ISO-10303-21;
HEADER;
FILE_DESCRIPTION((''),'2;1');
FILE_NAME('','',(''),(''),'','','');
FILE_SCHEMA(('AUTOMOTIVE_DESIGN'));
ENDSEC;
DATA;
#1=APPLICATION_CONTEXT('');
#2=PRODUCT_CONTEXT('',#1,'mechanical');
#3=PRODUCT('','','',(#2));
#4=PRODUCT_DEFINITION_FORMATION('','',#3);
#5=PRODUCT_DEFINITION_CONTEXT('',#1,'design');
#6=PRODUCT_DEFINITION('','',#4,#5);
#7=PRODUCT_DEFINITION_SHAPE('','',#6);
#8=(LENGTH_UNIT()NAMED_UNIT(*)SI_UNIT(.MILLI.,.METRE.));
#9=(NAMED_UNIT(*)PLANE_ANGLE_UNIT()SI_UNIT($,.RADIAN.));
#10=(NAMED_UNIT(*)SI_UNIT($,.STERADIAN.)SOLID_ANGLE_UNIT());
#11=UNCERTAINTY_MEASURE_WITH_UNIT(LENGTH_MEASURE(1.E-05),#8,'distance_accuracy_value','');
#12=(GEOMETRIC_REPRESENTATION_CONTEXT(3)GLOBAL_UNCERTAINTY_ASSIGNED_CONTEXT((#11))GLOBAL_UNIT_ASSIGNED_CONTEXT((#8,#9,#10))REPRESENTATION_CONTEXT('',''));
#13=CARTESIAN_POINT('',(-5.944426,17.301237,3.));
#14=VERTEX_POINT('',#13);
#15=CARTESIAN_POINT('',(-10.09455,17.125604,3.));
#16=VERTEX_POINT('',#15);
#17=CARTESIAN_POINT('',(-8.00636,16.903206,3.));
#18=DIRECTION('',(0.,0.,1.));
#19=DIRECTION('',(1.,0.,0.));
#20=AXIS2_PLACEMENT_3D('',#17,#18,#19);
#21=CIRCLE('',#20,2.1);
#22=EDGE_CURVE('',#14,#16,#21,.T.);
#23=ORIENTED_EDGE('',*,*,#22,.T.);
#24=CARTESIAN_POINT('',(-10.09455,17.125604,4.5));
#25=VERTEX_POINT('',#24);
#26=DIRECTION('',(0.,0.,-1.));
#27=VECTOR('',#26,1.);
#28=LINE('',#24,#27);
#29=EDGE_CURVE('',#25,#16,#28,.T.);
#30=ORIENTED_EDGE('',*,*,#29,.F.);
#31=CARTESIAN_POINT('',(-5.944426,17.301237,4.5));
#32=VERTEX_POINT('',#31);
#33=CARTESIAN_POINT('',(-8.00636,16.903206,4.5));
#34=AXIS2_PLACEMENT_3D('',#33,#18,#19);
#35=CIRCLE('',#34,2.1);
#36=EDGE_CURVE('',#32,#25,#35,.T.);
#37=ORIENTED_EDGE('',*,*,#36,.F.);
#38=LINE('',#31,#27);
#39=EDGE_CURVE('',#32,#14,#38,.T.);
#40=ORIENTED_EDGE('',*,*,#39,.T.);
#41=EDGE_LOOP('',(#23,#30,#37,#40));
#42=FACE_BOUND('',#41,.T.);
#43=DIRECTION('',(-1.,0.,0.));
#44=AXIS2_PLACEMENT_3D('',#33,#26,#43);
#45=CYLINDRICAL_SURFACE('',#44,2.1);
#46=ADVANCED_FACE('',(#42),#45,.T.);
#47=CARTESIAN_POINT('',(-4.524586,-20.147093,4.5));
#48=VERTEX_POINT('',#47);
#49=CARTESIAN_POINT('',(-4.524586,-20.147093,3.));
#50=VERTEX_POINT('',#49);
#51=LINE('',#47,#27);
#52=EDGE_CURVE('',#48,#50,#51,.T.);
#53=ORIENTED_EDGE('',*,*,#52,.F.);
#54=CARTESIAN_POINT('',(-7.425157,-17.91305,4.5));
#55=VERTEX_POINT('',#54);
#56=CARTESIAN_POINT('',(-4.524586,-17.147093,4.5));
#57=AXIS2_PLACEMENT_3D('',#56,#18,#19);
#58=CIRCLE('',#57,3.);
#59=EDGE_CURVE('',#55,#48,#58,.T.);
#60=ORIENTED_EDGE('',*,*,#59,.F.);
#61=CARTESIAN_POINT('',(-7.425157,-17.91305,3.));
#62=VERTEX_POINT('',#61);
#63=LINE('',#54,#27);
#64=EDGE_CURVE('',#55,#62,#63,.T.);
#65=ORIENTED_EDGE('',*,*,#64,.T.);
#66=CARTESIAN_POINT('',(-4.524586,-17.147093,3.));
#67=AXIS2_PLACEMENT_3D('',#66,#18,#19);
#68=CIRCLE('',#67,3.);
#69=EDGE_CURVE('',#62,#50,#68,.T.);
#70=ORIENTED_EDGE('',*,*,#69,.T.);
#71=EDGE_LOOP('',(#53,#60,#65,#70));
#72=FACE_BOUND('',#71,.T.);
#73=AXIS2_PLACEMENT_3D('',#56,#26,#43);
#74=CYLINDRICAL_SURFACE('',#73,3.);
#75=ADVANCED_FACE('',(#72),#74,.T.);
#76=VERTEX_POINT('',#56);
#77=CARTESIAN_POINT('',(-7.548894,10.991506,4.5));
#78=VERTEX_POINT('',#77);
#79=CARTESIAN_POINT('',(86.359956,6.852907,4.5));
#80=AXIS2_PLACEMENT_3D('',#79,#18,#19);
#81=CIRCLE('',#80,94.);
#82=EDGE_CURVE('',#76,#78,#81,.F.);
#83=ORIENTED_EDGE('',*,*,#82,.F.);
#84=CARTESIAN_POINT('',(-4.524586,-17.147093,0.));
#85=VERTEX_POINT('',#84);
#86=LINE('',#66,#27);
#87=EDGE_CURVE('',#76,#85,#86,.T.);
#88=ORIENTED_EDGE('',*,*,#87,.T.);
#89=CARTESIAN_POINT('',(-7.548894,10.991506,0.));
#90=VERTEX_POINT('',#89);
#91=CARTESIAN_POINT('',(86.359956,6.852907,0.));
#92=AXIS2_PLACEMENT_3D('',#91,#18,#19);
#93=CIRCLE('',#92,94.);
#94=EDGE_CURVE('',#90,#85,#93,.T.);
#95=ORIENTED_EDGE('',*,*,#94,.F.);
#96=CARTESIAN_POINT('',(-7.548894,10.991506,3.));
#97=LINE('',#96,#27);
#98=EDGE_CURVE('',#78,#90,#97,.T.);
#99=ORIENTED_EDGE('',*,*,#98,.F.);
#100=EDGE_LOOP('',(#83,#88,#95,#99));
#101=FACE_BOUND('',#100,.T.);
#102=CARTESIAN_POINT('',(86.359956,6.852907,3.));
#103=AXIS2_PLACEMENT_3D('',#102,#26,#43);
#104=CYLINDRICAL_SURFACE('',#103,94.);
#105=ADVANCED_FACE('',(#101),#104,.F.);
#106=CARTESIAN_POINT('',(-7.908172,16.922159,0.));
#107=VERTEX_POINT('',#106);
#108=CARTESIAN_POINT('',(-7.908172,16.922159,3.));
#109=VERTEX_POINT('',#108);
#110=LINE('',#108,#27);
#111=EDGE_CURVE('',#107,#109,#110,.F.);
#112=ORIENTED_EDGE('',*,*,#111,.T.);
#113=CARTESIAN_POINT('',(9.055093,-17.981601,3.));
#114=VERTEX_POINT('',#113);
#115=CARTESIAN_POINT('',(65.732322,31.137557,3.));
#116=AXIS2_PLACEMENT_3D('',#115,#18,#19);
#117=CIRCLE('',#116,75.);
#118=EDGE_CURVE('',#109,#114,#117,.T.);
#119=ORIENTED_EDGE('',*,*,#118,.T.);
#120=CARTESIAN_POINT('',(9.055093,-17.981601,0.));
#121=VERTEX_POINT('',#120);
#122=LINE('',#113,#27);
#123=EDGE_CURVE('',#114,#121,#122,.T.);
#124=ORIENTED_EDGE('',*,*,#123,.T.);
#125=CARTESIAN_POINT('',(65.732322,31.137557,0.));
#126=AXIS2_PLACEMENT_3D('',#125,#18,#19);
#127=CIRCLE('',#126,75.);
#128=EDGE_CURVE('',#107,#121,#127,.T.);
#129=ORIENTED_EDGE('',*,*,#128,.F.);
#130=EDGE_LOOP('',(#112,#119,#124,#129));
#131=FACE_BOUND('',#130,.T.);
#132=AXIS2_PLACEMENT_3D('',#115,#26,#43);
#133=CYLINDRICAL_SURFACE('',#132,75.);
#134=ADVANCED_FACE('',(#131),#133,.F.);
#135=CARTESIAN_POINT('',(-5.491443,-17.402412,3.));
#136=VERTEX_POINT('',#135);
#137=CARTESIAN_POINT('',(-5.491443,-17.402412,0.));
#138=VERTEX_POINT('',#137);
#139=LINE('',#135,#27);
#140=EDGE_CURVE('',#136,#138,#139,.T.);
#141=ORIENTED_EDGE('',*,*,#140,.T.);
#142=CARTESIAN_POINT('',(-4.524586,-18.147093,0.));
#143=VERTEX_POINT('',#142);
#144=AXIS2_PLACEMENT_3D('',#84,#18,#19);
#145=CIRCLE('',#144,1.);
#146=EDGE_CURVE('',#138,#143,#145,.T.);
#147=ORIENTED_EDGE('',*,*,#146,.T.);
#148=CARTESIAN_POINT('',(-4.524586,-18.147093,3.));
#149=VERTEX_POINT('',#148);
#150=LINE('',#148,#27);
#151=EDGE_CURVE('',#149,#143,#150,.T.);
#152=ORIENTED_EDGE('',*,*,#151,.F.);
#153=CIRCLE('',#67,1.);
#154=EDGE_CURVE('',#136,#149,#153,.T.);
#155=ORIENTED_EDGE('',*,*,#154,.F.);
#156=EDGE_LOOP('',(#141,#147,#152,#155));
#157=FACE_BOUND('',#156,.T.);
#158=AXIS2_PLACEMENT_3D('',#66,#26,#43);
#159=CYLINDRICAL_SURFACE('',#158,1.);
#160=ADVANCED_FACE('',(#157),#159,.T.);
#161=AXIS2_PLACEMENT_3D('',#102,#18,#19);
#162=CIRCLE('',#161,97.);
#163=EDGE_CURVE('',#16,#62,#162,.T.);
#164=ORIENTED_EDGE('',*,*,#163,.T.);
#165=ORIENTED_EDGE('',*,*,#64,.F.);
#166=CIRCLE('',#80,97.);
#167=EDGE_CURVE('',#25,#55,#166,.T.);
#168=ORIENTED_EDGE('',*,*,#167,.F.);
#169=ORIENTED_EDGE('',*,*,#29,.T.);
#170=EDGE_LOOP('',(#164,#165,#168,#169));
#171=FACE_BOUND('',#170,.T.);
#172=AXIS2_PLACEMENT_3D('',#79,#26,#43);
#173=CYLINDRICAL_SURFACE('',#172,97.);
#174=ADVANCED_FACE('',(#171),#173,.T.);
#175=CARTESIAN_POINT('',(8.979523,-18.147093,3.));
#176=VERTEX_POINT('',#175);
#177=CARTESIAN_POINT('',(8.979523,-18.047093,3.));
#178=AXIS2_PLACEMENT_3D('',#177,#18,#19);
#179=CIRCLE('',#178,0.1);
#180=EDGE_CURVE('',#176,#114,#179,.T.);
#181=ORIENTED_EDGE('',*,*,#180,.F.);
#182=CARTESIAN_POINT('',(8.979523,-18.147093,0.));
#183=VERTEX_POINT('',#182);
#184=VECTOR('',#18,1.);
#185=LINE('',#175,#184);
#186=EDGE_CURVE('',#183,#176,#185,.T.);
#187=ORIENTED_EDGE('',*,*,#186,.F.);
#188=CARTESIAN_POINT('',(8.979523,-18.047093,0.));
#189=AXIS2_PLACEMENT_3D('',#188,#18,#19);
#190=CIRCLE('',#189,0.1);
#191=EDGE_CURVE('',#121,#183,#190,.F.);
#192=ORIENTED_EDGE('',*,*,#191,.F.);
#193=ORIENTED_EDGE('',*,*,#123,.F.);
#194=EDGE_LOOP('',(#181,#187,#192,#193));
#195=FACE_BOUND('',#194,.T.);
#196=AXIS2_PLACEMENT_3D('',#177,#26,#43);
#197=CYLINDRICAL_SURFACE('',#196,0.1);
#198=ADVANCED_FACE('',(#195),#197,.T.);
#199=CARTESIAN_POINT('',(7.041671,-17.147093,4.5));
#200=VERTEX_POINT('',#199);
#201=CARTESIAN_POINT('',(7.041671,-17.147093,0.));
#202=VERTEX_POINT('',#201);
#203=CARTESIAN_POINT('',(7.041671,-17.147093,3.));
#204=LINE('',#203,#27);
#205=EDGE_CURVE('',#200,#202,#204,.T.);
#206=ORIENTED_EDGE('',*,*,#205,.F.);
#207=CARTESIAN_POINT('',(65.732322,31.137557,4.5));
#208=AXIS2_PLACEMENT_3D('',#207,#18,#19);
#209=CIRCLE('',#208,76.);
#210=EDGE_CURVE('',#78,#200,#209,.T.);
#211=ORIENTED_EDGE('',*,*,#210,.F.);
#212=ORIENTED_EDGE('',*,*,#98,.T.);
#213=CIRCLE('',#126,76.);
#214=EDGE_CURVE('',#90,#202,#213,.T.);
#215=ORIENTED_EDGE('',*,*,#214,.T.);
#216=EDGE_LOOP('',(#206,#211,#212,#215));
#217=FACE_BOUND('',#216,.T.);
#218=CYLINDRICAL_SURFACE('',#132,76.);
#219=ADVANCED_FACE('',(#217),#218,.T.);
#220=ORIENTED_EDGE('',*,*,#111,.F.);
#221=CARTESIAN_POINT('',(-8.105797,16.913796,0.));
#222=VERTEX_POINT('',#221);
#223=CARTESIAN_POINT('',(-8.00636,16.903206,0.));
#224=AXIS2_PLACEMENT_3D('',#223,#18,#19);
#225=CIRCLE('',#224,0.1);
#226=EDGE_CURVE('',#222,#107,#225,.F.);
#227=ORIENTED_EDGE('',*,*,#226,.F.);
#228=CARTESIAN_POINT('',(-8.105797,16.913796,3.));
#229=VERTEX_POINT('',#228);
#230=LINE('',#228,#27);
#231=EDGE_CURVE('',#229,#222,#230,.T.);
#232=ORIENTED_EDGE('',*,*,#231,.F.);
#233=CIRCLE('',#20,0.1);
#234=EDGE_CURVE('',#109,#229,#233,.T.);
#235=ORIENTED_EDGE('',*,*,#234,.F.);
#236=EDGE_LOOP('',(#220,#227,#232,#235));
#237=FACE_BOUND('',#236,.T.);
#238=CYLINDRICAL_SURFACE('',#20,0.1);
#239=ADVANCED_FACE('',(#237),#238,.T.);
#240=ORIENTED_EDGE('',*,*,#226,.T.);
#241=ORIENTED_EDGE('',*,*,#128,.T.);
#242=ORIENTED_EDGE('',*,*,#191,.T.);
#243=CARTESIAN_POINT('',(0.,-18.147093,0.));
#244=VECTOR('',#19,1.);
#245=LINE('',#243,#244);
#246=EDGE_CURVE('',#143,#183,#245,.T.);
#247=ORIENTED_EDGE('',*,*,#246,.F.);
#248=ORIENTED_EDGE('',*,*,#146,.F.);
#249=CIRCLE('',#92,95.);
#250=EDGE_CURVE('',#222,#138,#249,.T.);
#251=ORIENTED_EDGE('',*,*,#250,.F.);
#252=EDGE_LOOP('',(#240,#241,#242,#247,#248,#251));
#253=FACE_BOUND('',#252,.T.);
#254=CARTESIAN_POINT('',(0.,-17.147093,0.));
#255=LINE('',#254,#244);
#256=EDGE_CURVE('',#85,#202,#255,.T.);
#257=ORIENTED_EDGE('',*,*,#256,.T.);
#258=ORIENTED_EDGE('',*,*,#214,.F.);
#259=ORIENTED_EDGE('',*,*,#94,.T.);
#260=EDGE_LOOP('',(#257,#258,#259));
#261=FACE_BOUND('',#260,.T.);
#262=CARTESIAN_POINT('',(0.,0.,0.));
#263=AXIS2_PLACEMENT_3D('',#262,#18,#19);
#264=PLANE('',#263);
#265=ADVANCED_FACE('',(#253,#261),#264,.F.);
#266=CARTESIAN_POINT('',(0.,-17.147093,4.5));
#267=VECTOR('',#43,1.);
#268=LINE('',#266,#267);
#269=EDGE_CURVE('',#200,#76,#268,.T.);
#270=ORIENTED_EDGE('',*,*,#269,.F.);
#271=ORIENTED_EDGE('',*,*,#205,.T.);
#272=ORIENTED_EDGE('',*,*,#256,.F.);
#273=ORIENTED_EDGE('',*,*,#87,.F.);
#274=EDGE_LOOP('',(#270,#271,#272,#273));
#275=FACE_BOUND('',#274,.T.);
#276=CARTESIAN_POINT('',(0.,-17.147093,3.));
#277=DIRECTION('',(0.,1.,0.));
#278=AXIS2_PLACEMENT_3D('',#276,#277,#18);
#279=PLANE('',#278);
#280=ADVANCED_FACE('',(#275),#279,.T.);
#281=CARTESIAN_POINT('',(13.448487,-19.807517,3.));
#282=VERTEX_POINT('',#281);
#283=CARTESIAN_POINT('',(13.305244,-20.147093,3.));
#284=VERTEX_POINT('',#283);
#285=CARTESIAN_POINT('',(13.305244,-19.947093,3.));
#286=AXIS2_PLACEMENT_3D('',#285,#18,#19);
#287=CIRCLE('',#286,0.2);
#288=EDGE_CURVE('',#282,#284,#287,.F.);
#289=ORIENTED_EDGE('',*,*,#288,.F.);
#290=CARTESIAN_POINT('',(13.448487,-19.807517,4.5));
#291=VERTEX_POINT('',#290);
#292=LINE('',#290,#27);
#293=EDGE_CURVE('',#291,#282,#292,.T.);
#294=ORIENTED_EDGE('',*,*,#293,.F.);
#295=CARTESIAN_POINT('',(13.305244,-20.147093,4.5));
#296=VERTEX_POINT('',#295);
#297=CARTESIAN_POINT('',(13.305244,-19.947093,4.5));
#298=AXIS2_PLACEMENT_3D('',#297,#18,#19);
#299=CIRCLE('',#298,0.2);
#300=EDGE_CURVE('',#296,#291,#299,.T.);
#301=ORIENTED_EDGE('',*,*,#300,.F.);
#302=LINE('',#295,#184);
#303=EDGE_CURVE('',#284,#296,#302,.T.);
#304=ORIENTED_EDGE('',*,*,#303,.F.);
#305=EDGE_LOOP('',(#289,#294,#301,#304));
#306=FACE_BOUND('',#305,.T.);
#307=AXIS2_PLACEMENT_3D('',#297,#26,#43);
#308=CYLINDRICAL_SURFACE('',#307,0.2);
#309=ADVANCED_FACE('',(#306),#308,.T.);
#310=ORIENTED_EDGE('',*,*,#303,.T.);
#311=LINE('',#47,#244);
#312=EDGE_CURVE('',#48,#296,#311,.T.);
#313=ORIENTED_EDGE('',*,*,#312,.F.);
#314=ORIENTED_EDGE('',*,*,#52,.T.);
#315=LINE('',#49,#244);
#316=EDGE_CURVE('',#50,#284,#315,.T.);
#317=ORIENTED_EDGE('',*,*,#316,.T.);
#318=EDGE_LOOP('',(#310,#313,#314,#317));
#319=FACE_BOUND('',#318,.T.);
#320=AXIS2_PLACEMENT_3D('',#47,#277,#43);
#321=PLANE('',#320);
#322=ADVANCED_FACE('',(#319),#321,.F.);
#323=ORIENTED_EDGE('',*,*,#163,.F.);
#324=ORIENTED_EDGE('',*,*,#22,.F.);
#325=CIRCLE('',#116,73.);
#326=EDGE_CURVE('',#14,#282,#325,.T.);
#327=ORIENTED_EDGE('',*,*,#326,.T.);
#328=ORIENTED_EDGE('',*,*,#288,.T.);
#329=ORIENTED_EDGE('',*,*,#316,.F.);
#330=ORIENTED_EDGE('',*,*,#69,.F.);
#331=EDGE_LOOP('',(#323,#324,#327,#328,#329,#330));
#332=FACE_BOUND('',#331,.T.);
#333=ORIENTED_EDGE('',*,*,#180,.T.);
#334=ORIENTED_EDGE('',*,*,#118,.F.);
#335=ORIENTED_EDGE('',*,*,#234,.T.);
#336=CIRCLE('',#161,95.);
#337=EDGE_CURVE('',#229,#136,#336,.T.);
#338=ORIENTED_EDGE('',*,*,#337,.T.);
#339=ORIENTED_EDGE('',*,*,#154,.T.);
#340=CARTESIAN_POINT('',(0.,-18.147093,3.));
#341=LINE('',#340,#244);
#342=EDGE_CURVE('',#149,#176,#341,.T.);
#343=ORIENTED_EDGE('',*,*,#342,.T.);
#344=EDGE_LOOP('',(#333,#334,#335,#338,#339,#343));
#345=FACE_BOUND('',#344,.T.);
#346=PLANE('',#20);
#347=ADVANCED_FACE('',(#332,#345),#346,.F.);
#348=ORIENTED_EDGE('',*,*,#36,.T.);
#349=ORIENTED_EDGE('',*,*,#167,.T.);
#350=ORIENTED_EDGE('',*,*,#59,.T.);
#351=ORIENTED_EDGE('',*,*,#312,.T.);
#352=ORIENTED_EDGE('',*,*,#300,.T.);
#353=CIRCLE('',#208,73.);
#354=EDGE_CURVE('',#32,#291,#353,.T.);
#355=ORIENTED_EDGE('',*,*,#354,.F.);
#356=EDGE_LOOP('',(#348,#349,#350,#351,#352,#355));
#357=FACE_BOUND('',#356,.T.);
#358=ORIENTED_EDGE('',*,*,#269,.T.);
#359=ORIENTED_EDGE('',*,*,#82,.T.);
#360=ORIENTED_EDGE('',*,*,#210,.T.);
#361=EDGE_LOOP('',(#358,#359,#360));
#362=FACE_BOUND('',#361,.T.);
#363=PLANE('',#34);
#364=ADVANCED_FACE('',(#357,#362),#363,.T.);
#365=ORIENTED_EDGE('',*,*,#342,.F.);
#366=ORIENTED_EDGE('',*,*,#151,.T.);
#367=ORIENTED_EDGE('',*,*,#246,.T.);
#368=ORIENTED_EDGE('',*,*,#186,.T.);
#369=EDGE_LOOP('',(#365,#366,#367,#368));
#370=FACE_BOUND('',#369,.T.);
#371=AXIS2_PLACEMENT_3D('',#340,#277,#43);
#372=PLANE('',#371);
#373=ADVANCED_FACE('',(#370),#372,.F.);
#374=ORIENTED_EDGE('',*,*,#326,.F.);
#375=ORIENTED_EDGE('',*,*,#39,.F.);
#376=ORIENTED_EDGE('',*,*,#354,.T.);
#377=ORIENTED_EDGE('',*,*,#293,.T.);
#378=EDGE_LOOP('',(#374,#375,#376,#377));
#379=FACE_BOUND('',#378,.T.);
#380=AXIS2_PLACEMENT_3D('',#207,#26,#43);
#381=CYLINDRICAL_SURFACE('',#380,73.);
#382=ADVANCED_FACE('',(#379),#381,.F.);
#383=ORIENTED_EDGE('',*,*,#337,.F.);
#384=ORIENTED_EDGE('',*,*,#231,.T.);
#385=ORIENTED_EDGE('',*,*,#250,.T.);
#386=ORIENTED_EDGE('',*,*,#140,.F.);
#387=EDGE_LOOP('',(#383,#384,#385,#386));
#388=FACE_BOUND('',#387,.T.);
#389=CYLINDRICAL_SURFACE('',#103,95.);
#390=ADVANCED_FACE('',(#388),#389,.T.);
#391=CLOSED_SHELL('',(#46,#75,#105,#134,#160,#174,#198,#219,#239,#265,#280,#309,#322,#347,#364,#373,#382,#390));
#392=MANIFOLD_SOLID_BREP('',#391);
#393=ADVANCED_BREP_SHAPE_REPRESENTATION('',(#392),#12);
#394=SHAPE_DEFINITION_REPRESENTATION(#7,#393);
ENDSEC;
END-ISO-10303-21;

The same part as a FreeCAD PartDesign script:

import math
import FreeCAD as App
import Part
import Sketcher

V = App.Vector


def edges_at(feature, points):
    """Names of the edges that pass closest to the given points."""
    edges = feature.Shape.Edges
    near = lambda p: min(range(len(edges)), key=lambda i: edges[i].distToShape(Part.Vertex(*p))[0])
    return sorted({f"Edge{near(p) + 1}" for p in points})

doc = App.newDocument("Part")
body = doc.addObject("PartDesign::Body", "Body")

sketch1 = body.newObject("Sketcher::SketchObject", "Sketch")
sketch1.AttachmentSupport = (doc.getObject("XY_Plane"), [""])
sketch1.MapMode = "FlatFace"
sketch1.addGeometry([
    Part.ArcOfCircle(Part.Circle(V(65.7, 31.1, 0), V(0, 0, 1), 75), math.radians(-170), math.radians(-139)),
    Part.ArcOfCircle(Part.Circle(V(86.4, 6.9, 0), V(0, 0, 1), 95), math.radians(174), math.radians(195)),
    Part.ArcOfCircle(Part.Circle(V(-4.5, -17.1, 0), V(0, 0, 1), 1), math.radians(-165), math.radians(-90)),
    Part.LineSegment(V(-4.5, -18.1, 0), V(9.2, -18.1, 0)),
    Part.ArcOfCircle(Part.Circle(V(65.7, 31.1, 0), V(0, 0, 1), 76), math.radians(-165), math.radians(-141)),
    Part.LineSegment(V(7, -17.1, 0), V(-4.5, -17.1, 0)),
    Part.ArcOfCircle(Part.Circle(V(86.4, 6.9, 0), V(0, 0, 1), 94), math.radians(177.48), math.radians(194.79)),
], False)
sketch1.addConstraint([
    Sketcher.Constraint("Coincident", 0, 1, 1, 1),
    Sketcher.Constraint("Tangent", 1, 2, 2, 1),
    Sketcher.Constraint("Tangent", 2, 2, 3, 1),
    Sketcher.Constraint("Coincident", 3, 2, 0, 2),
    Sketcher.Constraint("Coincident", 4, 2, 5, 1),
    Sketcher.Constraint("Coincident", 5, 2, 6, 2),
    Sketcher.Constraint("Coincident", 6, 1, 4, 1),
    Sketcher.Constraint("Horizontal", 3),
    Sketcher.Constraint("Horizontal", 5),
    Sketcher.Constraint("Coincident", 4, 3, 0, 3),
    Sketcher.Constraint("Coincident", 6, 3, 1, 3),
    Sketcher.Constraint("Coincident", 5, 2, 2, 3),
    Sketcher.Constraint("Radius", 0, 75.0),
    Sketcher.Constraint("Radius", 1, 95.0),
    Sketcher.Constraint("Radius", 2, 1.0),
    Sketcher.Constraint("Radius", 4, 76.0),
    Sketcher.Constraint("DistanceY", 2, 3, 1, 3, 24.0),
    Sketcher.Constraint("DistanceY", 2, 3, 6, 1, 28.138599),
    Sketcher.Constraint("DistanceX", 3, 1, 3, 2, 13.723527),
    Sketcher.Constraint("DistanceX", -1, 1, 3, 2, 9.19894),
    Sketcher.Constraint("DistanceY", -1, 1, 0, 3, 31.137557),
])
pad1 = body.newObject("PartDesign::Pad", "Pad")
pad1.Profile = sketch1
pad1.Length = 3
doc.recompute()

fillet = body.newObject("PartDesign::Fillet", "Fillet")
fillet.Base = (pad1, edges_at(pad1, [(-8.032, 17.581, 1.5)]))
fillet.Radius = 0.1

sketch2 = body.newObject("Sketcher::SketchObject", "Sketch001")
sketch2.AttachmentSupport = (doc.getObject("XY_Plane"), [""])
sketch2.MapMode = "FlatFace"
sketch2.AttachmentOffset = App.Placement(V(0, 0, 3), App.Rotation())
sketch2.addGeometry([
    Part.LineSegment(V(-4.5, -20.1, 0), V(13.8, -20.1, 0)),
    Part.ArcOfCircle(Part.Circle(V(65.7, 31.1, 0), V(0, 0, 1), 73), math.radians(-169), math.radians(-135)),
    Part.ArcOfCircle(Part.Circle(V(-8, 16.9, 0), V(0, 0, 1), 2.1), math.radians(11), math.radians(174)),
    Part.ArcOfCircle(Part.Circle(V(86.4, 6.9, 0), V(0, 0, 1), 97), math.radians(174), math.radians(195)),
    Part.ArcOfCircle(Part.Circle(V(-4.5, -17.1, 0), V(0, 0, 1), 3), math.radians(-165), math.radians(-90)),
    Part.LineSegment(V(7, -17.1, 0), V(-4.5, -17.1, 0)),
    Part.ArcOfCircle(Part.Circle(V(86.4, 6.9, 0), V(0, 0, 1), 94), math.radians(177.48), math.radians(194.79)),
    Part.ArcOfCircle(Part.Circle(V(65.7, 31.1, 0), V(0, 0, 1), 76), math.radians(-165), math.radians(-141)),
], False)
sketch2.addConstraint([
    Sketcher.Constraint("Coincident", 0, 2, 1, 2),
    Sketcher.Constraint("Tangent", 1, 1, 2, 1),
    Sketcher.Constraint("Tangent", 2, 2, 3, 1),
    Sketcher.Constraint("Tangent", 3, 2, 4, 1),
    Sketcher.Constraint("Tangent", 4, 2, 0, 1),
    Sketcher.Constraint("Coincident", 5, 2, 6, 2),
    Sketcher.Constraint("Coincident", 6, 1, 7, 1),
    Sketcher.Constraint("Coincident", 7, 2, 5, 1),
    Sketcher.Constraint("Horizontal", 0),
    Sketcher.Constraint("Horizontal", 5),
    Sketcher.Constraint("Coincident", 6, 3, 3, 3),
    Sketcher.Constraint("Coincident", 7, 3, 1, 3),
    Sketcher.Constraint("Coincident", 5, 2, 4, 3),
    Sketcher.Constraint("Radius", 1, 73.0),
    Sketcher.Constraint("Radius", 3, 97.0),
    Sketcher.Constraint("Radius", 4, 3.0),
    Sketcher.Constraint("Radius", 7, 76.0),
    Sketcher.Constraint("Radius", 2, 2.1),
    Sketcher.Constraint("DistanceY", 4, 3, 3, 3, 24.0),
    Sketcher.Constraint("DistanceY", 3, 3, 2, 3, 10.050299),
    Sketcher.Constraint("DistanceX", 0, 1, 0, 2, 18.306118),
    Sketcher.Constraint("DistanceX", 2, 3, -1, 1, 8.00636),
    Sketcher.Constraint("DistanceY", 3, 2, -1, 1, 17.91305),
])
pad2 = body.newObject("PartDesign::Pad", "Pad001")
pad2.Profile = sketch2
pad2.Length = 1.5
doc.recompute()

fillet2 = body.newObject("PartDesign::Fillet", "Fillet001")
fillet2.Base = (pad2, edges_at(pad2, [(13.782, -20.147, 3.75)]))
fillet2.Radius = 0.2
doc.recompute()

fillet3 = body.newObject("PartDesign::Fillet", "Fillet002")
fillet3.Base = (fillet2, edges_at(fillet2, [(9.199, -18.147, 1.5)]))
fillet3.Radius = 0.1

doc.recompute()
